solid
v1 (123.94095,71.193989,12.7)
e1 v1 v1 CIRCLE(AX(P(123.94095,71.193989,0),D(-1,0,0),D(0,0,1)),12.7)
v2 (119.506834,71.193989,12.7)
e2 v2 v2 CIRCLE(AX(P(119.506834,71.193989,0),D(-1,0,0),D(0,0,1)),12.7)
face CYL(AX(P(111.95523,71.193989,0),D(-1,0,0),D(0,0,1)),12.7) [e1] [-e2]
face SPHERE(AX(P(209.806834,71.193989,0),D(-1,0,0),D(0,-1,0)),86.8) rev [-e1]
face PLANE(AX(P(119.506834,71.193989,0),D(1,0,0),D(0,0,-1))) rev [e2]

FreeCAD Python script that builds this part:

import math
import FreeCAD as App
import Part
import Sketcher
from FreeCAD import Vector

doc = App.newDocument("Part")
body = doc.addObject("PartDesign::Body", "Body")

sketch1 = doc.addObject("Sketcher::SketchObject", "Sketch")
body.addObject(sketch1)
sketch1.AttachmentSupport = (doc.XY_Plane, [""])
sketch1.MapMode = "FlatFace"
sketch1.addGeometry([
    Part.LineSegment(Vector(119.5, 83.9, 0), Vector(119.5, 71.2, 0)),
    Part.LineSegment(Vector(119.5, 71.2, 0), Vector(123, 71.2, 0)),
    Part.ArcOfCircle(Part.Circle(Vector(209.8, 71.2, 0), Vector(0, 0, 1), 86.8), math.radians(171.59), math.radians(180)),
    Part.LineSegment(Vector(123.9, 83.9, 0), Vector(119.5, 83.9, 0)),
], False)
sketch1.addGeometry(Part.LineSegment(Vector(119.5, 71.2, 0), Vector(209.8, 71.2, 0)), True)
sketch1.addConstraint([
    Sketcher.Constraint("Coincident", 0, 2, 1, 1),
    Sketcher.Constraint("Coincident", 1, 2, 2, 2),
    Sketcher.Constraint("Coincident", 2, 1, 3, 1),
    Sketcher.Constraint("Coincident", 3, 2, 0, 1),
    Sketcher.Constraint("Vertical", 0),
    Sketcher.Constraint("Horizontal", 1),
    Sketcher.Constraint("Horizontal", 3),
    Sketcher.Constraint("Horizontal", 4),
    Sketcher.Constraint("Coincident", 4, 1, 0, 2),
    Sketcher.Constraint("Coincident", 4, 2, 2, 3),
    Sketcher.Constraint("Radius", 2, 86.8),
    Sketcher.Constraint("DistanceX", 1, 1, 1, 2, 3.5),
    Sketcher.Constraint("DistanceY", 0, 2, 0, 1, 12.7),
    Sketcher.Constraint("DistanceY", -1, 1, 2, 3, 71.193989),
    Sketcher.Constraint("DistanceX", -1, 1, 2, 1, 123.94095),
])
revolution = doc.addObject("PartDesign::Revolution", "Revolution")
body.addObject(revolution)
revolution.Profile = sketch1
revolution.ReferenceAxis = (sketch1, ["Axis0"])
revolution.Angle = 360

doc.recompute()
